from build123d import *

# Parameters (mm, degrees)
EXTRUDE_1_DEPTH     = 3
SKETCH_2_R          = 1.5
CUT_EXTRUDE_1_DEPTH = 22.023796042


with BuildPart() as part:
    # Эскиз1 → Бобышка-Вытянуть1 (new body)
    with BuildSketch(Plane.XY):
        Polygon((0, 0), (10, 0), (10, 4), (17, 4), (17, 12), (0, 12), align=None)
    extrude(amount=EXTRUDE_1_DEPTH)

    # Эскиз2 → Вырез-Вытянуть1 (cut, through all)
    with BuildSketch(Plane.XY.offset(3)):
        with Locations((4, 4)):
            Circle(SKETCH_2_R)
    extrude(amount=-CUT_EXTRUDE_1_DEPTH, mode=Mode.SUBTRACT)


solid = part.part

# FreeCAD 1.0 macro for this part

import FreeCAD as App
import Part
import Sketcher

doc = App.newDocument("Part")
body = doc.addObject("PartDesign::Body", "Body")

sketch1 = body.newObject("Sketcher::SketchObject", "Sketch")
sketch1.AttachmentSupport = (doc.getObject("XY_Plane"), [""])
sketch1.MapMode = "FlatFace"
sketch1.addGeometry(Part.LineSegment(App.Vector(0, 0, 0), App.Vector(10, 0, 0)), False)
sketch1.addGeometry(Part.LineSegment(App.Vector(10, 0, 0), App.Vector(10, 4, 0)), False)
sketch1.addGeometry(Part.LineSegment(App.Vector(10, 4, 0), App.Vector(17, 4, 0)), False)
sketch1.addGeometry(Part.LineSegment(App.Vector(17, 4, 0), App.Vector(17, 12, 0)), False)
sketch1.addGeometry(Part.LineSegment(App.Vector(17, 12, 0), App.Vector(0, 12, 0)), False)
sketch1.addGeometry(Part.LineSegment(App.Vector(0, 12, 0), App.Vector(0, 0, 0)), False)
sketch1.addConstraint(Sketcher.Constraint("Coincident", 0, 2, 1, 1))
sketch1.addConstraint(Sketcher.Constraint("Coincident", 1, 2, 2, 1))
sketch1.addConstraint(Sketcher.Constraint("Coincident", 2, 2, 3, 1))
sketch1.addConstraint(Sketcher.Constraint("Coincident", 3, 2, 4, 1))
sketch1.addConstraint(Sketcher.Constraint("Coincident", 4, 2, 5, 1))
sketch1.addConstraint(Sketcher.Constraint("Coincident", 5, 2, 0, 1))
sketch1.addConstraint(Sketcher.Constraint("Horizontal", 0))
sketch1.addConstraint(Sketcher.Constraint("Vertical", 1))
sketch1.addConstraint(Sketcher.Constraint("Horizontal", 2))
sketch1.addConstraint(Sketcher.Constraint("Vertical", 3))
sketch1.addConstraint(Sketcher.Constraint("Horizontal", 4))
sketch1.addConstraint(Sketcher.Constraint("Vertical", 5))
sketch1.addConstraint(Sketcher.Constraint("Coincident", 5, 2, -1, 1))
sketch1.addConstraint(Sketcher.Constraint("DistanceX", 0, 1, 0, 2, 10.0))
sketch1.addConstraint(Sketcher.Constraint("DistanceX", 2, 1, 2, 2, 7.0))
sketch1.addConstraint(Sketcher.Constraint("DistanceY", 1, 1, 1, 2, 4.0))
sketch1.addConstraint(Sketcher.Constraint("DistanceY", 3, 1, 3, 2, 8.0))
pad1 = body.newObject("PartDesign::Pad", "Pad")
pad1.Profile = sketch1
pad1.Length = 3

sketch2 = body.newObject("Sketcher::SketchObject", "Sketch001")
sketch2.AttachmentSupport = (doc.getObject("XY_Plane"), [""])
sketch2.MapMode = "FlatFace"
sketch2.AttachmentOffset = App.Placement(App.Vector(0, 0, 3), App.Rotation())
sketch2.addGeometry(Part.Circle(App.Vector(4, 4, 0), App.Vector(0, 0, 1), 1.5), False)
sketch2.addConstraint(Sketcher.Constraint("Diameter", 0, 3.0))
sketch2.addConstraint(Sketcher.Constraint("DistanceX", -1, 1, 0, 3, 4.0))
sketch2.addConstraint(Sketcher.Constraint("DistanceY", -1, 1, 0, 3, 4.0))
pocket1 = body.newObject("PartDesign::Pocket", "Pocket")
pocket1.Profile = sketch2
pocket1.Type = "ThroughAll"

doc.recompute()
